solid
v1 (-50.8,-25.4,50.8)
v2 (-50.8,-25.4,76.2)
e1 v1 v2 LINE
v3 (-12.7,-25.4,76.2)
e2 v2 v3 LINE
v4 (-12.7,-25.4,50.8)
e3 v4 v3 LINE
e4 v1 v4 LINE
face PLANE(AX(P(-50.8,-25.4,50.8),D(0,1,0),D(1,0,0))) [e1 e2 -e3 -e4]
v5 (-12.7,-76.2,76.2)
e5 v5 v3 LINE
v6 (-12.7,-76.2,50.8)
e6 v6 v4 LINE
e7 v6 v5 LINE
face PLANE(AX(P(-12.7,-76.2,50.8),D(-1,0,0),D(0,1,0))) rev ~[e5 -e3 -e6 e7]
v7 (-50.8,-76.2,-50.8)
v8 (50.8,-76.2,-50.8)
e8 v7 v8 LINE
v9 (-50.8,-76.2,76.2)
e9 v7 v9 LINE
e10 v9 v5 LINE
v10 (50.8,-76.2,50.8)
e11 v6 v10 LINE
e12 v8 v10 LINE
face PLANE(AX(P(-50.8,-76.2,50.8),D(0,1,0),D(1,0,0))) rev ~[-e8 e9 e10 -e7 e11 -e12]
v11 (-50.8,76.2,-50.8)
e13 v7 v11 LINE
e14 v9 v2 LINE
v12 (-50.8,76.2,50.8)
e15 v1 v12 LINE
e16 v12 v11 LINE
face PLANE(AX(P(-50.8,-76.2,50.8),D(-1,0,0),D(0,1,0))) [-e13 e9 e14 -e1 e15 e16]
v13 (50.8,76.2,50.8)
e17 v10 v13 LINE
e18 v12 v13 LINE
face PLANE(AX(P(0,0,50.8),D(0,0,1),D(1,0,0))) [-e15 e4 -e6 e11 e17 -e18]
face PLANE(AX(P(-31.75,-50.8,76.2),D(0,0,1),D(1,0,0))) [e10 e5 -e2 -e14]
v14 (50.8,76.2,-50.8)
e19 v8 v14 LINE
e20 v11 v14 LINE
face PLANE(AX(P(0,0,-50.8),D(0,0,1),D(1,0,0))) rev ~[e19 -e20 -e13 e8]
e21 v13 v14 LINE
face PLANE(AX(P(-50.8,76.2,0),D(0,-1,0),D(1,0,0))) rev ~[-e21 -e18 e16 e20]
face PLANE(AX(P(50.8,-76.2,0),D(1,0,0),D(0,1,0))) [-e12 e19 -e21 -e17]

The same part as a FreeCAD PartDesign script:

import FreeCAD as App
import Part
import Sketcher
from FreeCAD import Vector
Q = App.Units.Quantity


def add_polygon(sketch, points):
    """Adds a closed chain of lines whose ends are joined by coincident constraints."""
    first, n = sketch.GeometryCount, len(points)
    for a, b in zip(points, points[1:] + points[:1]):
        sketch.addGeometry(Part.LineSegment(App.Vector(*a, 0), App.Vector(*b, 0)), False)
    for i in range(n):
        sketch.addConstraint(Sketcher.Constraint("Coincident", first + i, 2, first + (i + 1) % n, 1))

doc = App.newDocument("Part")
body = doc.addObject("PartDesign::Body", "Body")

sketch1 = body.newObject("Sketcher::SketchObject", "Sketch")
sketch1.AttachmentSupport = (doc.getObject("XY_Plane"), [""])
sketch1.MapMode = "FlatFace"
add_polygon(sketch1, [(-50.8, 76.2), (-50.8, -76.2), (50.8, -76.2), (50.8, 76.2)])
sketch1.addConstraint([
    Sketcher.Constraint("Vertical", 0),
    Sketcher.Constraint("Horizontal", 1),
    Sketcher.Constraint("Vertical", 2),
    Sketcher.Constraint("Horizontal", 3),
    Sketcher.Constraint("Symmetric", 0, 2, 2, 2, -1, 1),
    Sketcher.Constraint("DistanceX", 1, 1, 1, 2, Q("4 in")),
    Sketcher.Constraint("DistanceY", 0, 2, 0, 1, Q("6 in")),
])
pad1 = body.newObject("PartDesign::Pad", "Pad")
pad1.Profile = sketch1
pad1.Length = Q("4 in")
pad1.Midplane = True

sketch2 = body.newObject("Sketcher::SketchObject", "Sketch001")
sketch2.AttachmentSupport = (doc.getObject("XY_Plane"), [""])
sketch2.MapMode = "FlatFace"
sketch2.AttachmentOffset = App.Placement(Vector(0, 0, 2 * 25.4), App.Rotation())
add_polygon(sketch2, [(-50.8, -25.4), (-50.8, -76.2), (-12.7, -76.2), (-12.7, -25.4)])
sketch2.addConstraint([
    Sketcher.Constraint("Vertical", 0),
    Sketcher.Constraint("Horizontal", 1),
    Sketcher.Constraint("Vertical", 2),
    Sketcher.Constraint("Horizontal", 3),
    Sketcher.Constraint("DistanceY", 0, 2, 0, 1, Q("2 in")),
    Sketcher.Constraint("DistanceX", 1, 1, 1, 2, Q("1.5 in")),
    Sketcher.Constraint("DistanceX", 0, 2, -1, 1, Q("2 in")),
    Sketcher.Constraint("DistanceY", 0, 2, -1, 1, Q("3 in")),
])
pad2 = body.newObject("PartDesign::Pad", "Pad001")
pad2.Profile = sketch2
pad2.Length = Q("1 in")

doc.recompute()
